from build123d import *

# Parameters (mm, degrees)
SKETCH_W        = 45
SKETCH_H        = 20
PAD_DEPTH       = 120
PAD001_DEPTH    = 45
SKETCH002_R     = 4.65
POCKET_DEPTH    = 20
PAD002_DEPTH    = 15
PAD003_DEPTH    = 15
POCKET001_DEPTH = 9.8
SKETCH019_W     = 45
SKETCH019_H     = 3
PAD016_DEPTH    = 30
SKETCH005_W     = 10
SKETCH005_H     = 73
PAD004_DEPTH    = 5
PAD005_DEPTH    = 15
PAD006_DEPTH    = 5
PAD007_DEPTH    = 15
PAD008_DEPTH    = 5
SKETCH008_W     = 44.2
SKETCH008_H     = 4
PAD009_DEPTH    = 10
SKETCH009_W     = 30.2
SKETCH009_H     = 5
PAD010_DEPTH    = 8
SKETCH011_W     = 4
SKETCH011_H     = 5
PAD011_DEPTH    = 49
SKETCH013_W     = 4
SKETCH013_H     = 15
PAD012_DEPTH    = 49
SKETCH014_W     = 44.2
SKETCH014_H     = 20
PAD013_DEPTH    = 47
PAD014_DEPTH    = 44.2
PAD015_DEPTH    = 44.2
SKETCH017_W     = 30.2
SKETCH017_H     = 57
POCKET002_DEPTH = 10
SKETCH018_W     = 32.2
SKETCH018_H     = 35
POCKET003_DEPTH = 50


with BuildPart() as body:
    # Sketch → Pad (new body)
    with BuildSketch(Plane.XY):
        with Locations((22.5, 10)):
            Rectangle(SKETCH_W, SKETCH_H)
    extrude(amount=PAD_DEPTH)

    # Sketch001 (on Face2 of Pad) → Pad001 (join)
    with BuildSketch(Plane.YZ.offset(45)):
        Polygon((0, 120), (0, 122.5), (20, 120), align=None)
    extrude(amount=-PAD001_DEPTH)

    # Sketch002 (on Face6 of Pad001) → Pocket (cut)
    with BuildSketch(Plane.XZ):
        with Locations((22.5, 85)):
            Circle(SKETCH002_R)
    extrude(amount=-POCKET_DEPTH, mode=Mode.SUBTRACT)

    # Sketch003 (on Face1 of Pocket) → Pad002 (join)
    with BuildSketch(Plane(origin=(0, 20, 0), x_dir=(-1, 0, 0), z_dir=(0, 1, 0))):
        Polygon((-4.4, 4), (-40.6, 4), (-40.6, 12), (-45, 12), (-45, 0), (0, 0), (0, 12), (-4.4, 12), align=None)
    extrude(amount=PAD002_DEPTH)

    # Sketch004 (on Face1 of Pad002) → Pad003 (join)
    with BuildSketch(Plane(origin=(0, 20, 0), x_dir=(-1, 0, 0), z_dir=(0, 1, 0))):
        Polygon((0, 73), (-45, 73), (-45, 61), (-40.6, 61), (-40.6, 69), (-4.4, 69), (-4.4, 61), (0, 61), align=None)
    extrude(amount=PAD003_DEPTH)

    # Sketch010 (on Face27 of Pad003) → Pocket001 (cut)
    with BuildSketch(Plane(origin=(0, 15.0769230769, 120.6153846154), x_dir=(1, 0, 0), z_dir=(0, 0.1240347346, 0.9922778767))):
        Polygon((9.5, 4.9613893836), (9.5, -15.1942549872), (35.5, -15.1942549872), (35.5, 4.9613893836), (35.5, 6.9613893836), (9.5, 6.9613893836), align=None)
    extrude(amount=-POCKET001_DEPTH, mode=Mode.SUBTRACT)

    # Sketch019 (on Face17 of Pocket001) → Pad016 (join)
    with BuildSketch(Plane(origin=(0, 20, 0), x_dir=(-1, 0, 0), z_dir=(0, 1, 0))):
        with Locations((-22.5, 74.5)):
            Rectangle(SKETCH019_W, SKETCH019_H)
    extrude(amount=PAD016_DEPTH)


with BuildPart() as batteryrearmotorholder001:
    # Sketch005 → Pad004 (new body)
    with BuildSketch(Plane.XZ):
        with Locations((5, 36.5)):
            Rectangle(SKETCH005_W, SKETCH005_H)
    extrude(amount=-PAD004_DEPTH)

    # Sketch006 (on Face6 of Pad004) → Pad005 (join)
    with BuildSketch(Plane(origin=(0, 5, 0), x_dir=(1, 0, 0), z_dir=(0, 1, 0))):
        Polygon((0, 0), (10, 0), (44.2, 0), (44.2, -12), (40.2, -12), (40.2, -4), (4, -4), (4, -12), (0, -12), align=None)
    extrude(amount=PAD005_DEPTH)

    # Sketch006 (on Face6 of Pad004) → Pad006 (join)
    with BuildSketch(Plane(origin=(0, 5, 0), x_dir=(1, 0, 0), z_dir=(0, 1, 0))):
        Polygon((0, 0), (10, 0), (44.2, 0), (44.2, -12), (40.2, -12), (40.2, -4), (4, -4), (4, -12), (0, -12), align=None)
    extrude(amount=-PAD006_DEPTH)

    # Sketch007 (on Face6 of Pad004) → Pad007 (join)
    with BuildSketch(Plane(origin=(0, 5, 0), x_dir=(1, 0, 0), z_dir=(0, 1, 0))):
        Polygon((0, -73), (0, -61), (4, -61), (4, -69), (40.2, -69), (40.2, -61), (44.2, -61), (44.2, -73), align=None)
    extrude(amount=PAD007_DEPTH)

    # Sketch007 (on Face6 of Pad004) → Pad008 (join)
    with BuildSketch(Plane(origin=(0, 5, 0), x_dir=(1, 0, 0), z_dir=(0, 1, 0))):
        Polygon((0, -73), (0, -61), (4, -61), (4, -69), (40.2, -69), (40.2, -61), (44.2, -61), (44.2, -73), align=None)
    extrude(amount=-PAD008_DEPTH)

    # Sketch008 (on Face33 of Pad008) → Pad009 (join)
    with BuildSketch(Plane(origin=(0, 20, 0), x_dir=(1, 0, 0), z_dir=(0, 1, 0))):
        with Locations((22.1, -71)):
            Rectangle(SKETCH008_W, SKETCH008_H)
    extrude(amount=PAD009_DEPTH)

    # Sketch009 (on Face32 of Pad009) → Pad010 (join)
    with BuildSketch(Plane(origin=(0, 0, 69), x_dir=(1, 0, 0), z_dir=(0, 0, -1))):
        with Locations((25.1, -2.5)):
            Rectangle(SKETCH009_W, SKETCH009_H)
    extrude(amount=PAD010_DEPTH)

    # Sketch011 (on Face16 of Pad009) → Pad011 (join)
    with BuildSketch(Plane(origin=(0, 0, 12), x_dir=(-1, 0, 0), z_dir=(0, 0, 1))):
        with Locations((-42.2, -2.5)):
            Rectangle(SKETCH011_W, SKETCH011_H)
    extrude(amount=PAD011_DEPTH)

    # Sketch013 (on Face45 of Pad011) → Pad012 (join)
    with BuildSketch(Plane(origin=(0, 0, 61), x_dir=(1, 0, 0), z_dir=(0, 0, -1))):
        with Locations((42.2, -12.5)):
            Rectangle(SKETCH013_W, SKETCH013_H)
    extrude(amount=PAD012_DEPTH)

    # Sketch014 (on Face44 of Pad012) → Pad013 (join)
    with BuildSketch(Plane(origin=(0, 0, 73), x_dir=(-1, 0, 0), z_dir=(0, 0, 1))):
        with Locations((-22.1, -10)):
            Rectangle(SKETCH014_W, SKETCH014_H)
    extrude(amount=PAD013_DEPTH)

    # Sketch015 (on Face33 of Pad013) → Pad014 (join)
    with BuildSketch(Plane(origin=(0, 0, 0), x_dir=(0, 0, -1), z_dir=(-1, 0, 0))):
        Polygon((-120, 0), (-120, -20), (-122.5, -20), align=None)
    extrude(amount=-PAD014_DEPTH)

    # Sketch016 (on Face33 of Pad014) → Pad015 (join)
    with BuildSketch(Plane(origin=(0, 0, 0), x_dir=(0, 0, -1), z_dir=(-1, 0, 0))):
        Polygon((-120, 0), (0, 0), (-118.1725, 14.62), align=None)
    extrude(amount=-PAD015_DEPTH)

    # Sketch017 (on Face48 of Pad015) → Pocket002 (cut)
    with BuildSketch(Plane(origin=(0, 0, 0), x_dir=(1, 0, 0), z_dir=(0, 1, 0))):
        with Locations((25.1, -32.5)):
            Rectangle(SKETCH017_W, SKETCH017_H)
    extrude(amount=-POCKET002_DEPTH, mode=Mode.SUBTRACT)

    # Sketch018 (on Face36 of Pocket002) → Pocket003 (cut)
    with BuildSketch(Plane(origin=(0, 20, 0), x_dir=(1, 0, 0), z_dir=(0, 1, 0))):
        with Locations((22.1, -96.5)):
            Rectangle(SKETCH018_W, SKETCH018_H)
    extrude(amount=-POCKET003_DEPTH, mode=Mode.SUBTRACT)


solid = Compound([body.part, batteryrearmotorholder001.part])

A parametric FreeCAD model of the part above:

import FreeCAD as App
import Part
import Sketcher
from FreeCAD import Vector
Q = App.Units.Quantity


def add_polygon(sketch, points):
    """Adds a closed chain of lines whose ends are joined by coincident constraints."""
    first, n = sketch.GeometryCount, len(points)
    for a, b in zip(points, points[1:] + points[:1]):
        sketch.addGeometry(Part.LineSegment(App.Vector(*a, 0), App.Vector(*b, 0)), False)
    for i in range(n):
        sketch.addConstraint(Sketcher.Constraint("Coincident", first + i, 2, first + (i + 1) % n, 1))

doc = App.newDocument("Part")
body = doc.addObject("PartDesign::Body", "Body")

sketch1 = doc.addObject("Sketcher::SketchObject", "Sketch")
body.addObject(sketch1)
sketch1.AttachmentSupport = (doc.XY_Plane, [""])
sketch1.MapMode = "FlatFace"
add_polygon(sketch1, [(0, 20), (0, 0), (45, 0), (45, 20)])
sketch1.addConstraint(Sketcher.Constraint("Vertical", 0))
sketch1.addConstraint(Sketcher.Constraint("Horizontal", 1))
sketch1.addConstraint(Sketcher.Constraint("Vertical", 2))
sketch1.addConstraint(Sketcher.Constraint("Horizontal", 3))
sketch1.addConstraint(Sketcher.Constraint("Coincident", 0, 2, -1, 1))
sketch1.addConstraint(Sketcher.Constraint("DistanceX", 1, 1, 1, 2, Q("45 mm")))
sketch1.addConstraint(Sketcher.Constraint("DistanceY", 0, 2, 0, 1, Q("20 mm")))
pad1 = doc.addObject("PartDesign::Pad", "Pad")
body.addObject(pad1)
pad1.Profile = sketch1
pad1.Length = 120

sketch2 = doc.addObject("Sketcher::SketchObject", "Sketch001")
body.addObject(sketch2)
sketch2.AttachmentSupport = (doc.YZ_Plane, [""])
sketch2.MapMode = "FlatFace"
sketch2.AttachmentOffset = App.Placement(Vector(0, 0, 45), App.Rotation())
add_polygon(sketch2, [(0, 122.5), (0, 120), (20, 120)])
sketch2.addConstraint(Sketcher.Constraint("Vertical", 0))
sketch2.addConstraint(Sketcher.Constraint("Horizontal", 1))
sketch2.addConstraint(Sketcher.Constraint("PointOnObject", 0, 2, -2))
sketch2.addConstraint(Sketcher.Constraint("DistanceX", 1, 1, 1, 2, Q("20 mm")))
sketch2.addConstraint(Sketcher.Constraint("DistanceY", 0, 2, 0, 1, Q("2.5 mm")))
sketch2.addConstraint(Sketcher.Constraint("DistanceY", -1, 1, 0, 2, Q("120 mm")))
pad2 = doc.addObject("PartDesign::Pad", "Pad001")
body.addObject(pad2)
pad2.Profile = sketch2
pad2.Length = 45
pad2.Reversed = True

sketch3 = doc.addObject("Sketcher::SketchObject", "Sketch002")
body.addObject(sketch3)
sketch3.AttachmentSupport = (doc.XZ_Plane, [""])
sketch3.MapMode = "FlatFace"
sketch3.addGeometry(Part.Circle(Vector(22.5, 85, 0), Vector(0, 0, 1), 4.7), False)
sketch3.addConstraint(Sketcher.Constraint("Diameter", 0, Q("9.3 mm")))
sketch3.addConstraint(Sketcher.Constraint("DistanceY", -1, 1, 0, 3, Q("85 mm")))
sketch3.addConstraint(Sketcher.Constraint("DistanceX", -1, 1, 0, 3, Q("22.5 mm")))
pocket1 = doc.addObject("PartDesign::Pocket", "Pocket")
body.addObject(pocket1)
pocket1.Profile = sketch3
pocket1.Length = 20

sketch4 = doc.addObject("Sketcher::SketchObject", "Sketch003")
body.addObject(sketch4)
sketch4.AttachmentSupport = (doc.XZ_Plane, [""])
sketch4.MapMode = "FlatFace"
sketch4.AttachmentOffset = App.Placement(Vector(0, 0, -20), App.Rotation())
add_polygon(sketch4, [(4.4, 4), (40.6, 4), (40.6, 12), (45, 12), (45, 0), (0, 0), (0, 12), (4.4, 12)])
sketch4.addConstraint(Sketcher.Constraint("Horizontal", 0))
sketch4.addConstraint(Sketcher.Constraint("Vertical", 1))
sketch4.addConstraint(Sketcher.Constraint("Horizontal", 2))
sketch4.addConstraint(Sketcher.Constraint("Vertical", 3))
sketch4.addConstraint(Sketcher.Constraint("Horizontal", 4))
sketch4.addConstraint(Sketcher.Constraint("Vertical", 5))
sketch4.addConstraint(Sketcher.Constraint("Horizontal", 6))
sketch4.addConstraint(Sketcher.Constraint("Vertical", 7))
sketch4.addConstraint(Sketcher.Constraint("Coincident", 4, 2, -1, 1))
sketch4.addConstraint(Sketcher.Constraint("Horizontal", 2, 2, 5, 2))
sketch4.addConstraint(Sketcher.Constraint("Equal", 2, 6))
sketch4.addConstraint(Sketcher.Constraint("DistanceX", 4, 2, 4, 1, Q("45 mm")))
sketch4.addConstraint(Sketcher.Constraint("DistanceY", 1, 1, 1, 2, Q("8 mm")))
sketch4.addConstraint(Sketcher.Constraint("DistanceY", 3, 2, 3, 1, Q("12 mm")))
sketch4.addConstraint(Sketcher.Constraint("DistanceX", 0, 1, 0, 2, Q("36.2 mm")))
pad3 = doc.addObject("PartDesign::Pad", "Pad002")
body.addObject(pad3)
pad3.Profile = sketch4
pad3.Length = 15
pad3.Reversed = True

sketch5 = doc.addObject("Sketcher::SketchObject", "Sketch004")
body.addObject(sketch5)
sketch5.AttachmentSupport = (doc.XZ_Plane, [""])
sketch5.MapMode = "FlatFace"
sketch5.AttachmentOffset = App.Placement(Vector(0, 0, -20), App.Rotation())
add_polygon(sketch5, [(0, 73), (45, 73), (45, 61), (40.6, 61), (40.6, 69), (4.4, 69), (4.4, 61), (0, 61)])
sketch5.addConstraint(Sketcher.Constraint("Horizontal", 0))
sketch5.addConstraint(Sketcher.Constraint("Vertical", 1))
sketch5.addConstraint(Sketcher.Constraint("Horizontal", 2))
sketch5.addConstraint(Sketcher.Constraint("Vertical", 3))
sketch5.addConstraint(Sketcher.Constraint("Horizontal", 4))
sketch5.addConstraint(Sketcher.Constraint("Vertical", 5))
sketch5.addConstraint(Sketcher.Constraint("Horizontal", 6))
sketch5.addConstraint(Sketcher.Constraint("Vertical", 7))
sketch5.addConstraint(Sketcher.Constraint("PointOnObject", 6, 2, -2))
sketch5.addConstraint(Sketcher.Constraint("Horizontal", 2, 2, 5, 2))
sketch5.addConstraint(Sketcher.Constraint("Equal", 2, 6))
sketch5.addConstraint(Sketcher.Constraint("DistanceX", 0, 1, 0, 2, Q("45 mm")))
sketch5.addConstraint(Sketcher.Constraint("DistanceY", 1, 2, 1, 1, Q("12 mm")))
sketch5.addConstraint(Sketcher.Constraint("DistanceY", 3, 1, 3, 2, Q("8 mm")))
sketch5.addConstraint(Sketcher.Constraint("DistanceX", 2, 2, 2, 1, Q("4.4 mm")))
sketch5.addConstraint(Sketcher.Constraint("DistanceY", -1, 1, 0, 2, Q("73 mm")))
pad4 = doc.addObject("PartDesign::Pad", "Pad003")
body.addObject(pad4)
pad4.Profile = sketch5
pad4.Length = 15
pad4.Reversed = True

sketch6 = doc.addObject("Sketcher::SketchObject", "Sketch005")
body.addObject(sketch6)
sketch6.Placement = App.Placement(Vector(0, 15.076923, 120.615385), App.Rotation(Vector(1, 0, 0), Vector(0, 0.992277877, -0.124034735), Vector(0, 0.124034735, 0.992277877), "ZXY"))
add_polygon(sketch6, [(10, -15), (36, -15), (36, 7), (10, 7)])
sketch6.addConstraint(Sketcher.Constraint("Horizontal", 0))
sketch6.addConstraint(Sketcher.Constraint("Vertical", 1))
sketch6.addConstraint(Sketcher.Constraint("Horizontal", 2))
sketch6.addConstraint(Sketcher.Constraint("Vertical", 3))
sketch6.addConstraint(Sketcher.Constraint("DistanceX", 0, 1, 0, 2, Q("26 mm")))
sketch6.addConstraint(Sketcher.Constraint("DistanceX", -1, 1, 0, 2, Q("35.5 mm")))
sketch6.addConstraint(Sketcher.Constraint("DistanceY", 1, 1, 1, 2, Q("22.155644 mm")))
sketch6.addConstraint(Sketcher.Constraint("DistanceY", -1, 1, 1, 2, Q("6.961389 mm")))
pocket2 = doc.addObject("PartDesign::Pocket", "Pocket001")
body.addObject(pocket2)
pocket2.Profile = sketch6
pocket2.Length = 9.8

sketch7 = doc.addObject("Sketcher::SketchObject", "Sketch006")
body.addObject(sketch7)
sketch7.AttachmentSupport = (doc.XZ_Plane, [""])
sketch7.MapMode = "FlatFace"
sketch7.AttachmentOffset = App.Placement(Vector(0, 0, -20), App.Rotation())
add_polygon(sketch7, [(45, 76), (45, 73), (0, 73), (0, 76)])
sketch7.addConstraint(Sketcher.Constraint("Vertical", 0))
sketch7.addConstraint(Sketcher.Constraint("Horizontal", 1))
sketch7.addConstraint(Sketcher.Constraint("Vertical", 2))
sketch7.addConstraint(Sketcher.Constraint("Horizontal", 3))
sketch7.addConstraint(Sketcher.Constraint("PointOnObject", 1, 2, -2))
sketch7.addConstraint(Sketcher.Constraint("DistanceX", 1, 2, 1, 1, Q("45 mm")))
sketch7.addConstraint(Sketcher.Constraint("DistanceY", 0, 2, 0, 1, Q("3 mm")))
sketch7.addConstraint(Sketcher.Constraint("DistanceY", -1, 1, 0, 2, Q("73 mm")))
pad5 = doc.addObject("PartDesign::Pad", "Pad004")
body.addObject(pad5)
pad5.Profile = sketch7
pad5.Length = 30
pad5.Reversed = True
body2 = doc.addObject("PartDesign::Body", "Body001")

sketch8 = doc.addObject("Sketcher::SketchObject", "Sketch007")
body2.addObject(sketch8)
sketch8.AttachmentSupport = (doc.getObject("XZ_Plane001"), [""])
sketch8.MapMode = "FlatFace"
add_polygon(sketch8, [(0, 73), (0, 0), (10, 0), (10, 73)])
sketch8.addConstraint(Sketcher.Constraint("Vertical", 0))
sketch8.addConstraint(Sketcher.Constraint("Horizontal", 1))
sketch8.addConstraint(Sketcher.Constraint("Vertical", 2))
sketch8.addConstraint(Sketcher.Constraint("Horizontal", 3))
sketch8.addConstraint(Sketcher.Constraint("Coincident", 0, 2, -1, 1))
sketch8.addConstraint(Sketcher.Constraint("DistanceX", 1, 1, 1, 2, Q("10 mm")))
sketch8.addConstraint(Sketcher.Constraint("DistanceY", 0, 2, 0, 1, Q("73 mm")))
pad6 = doc.addObject("PartDesign::Pad", "Pad005")
body2.addObject(pad6)
pad6.Profile = sketch8
pad6.Length = 5
pad6.Reversed = True

sketch9 = doc.addObject("Sketcher::SketchObject", "Sketch008")
body2.addObject(sketch9)
sketch9.AttachmentSupport = (doc.getObject("XZ_Plane001"), [""])
sketch9.MapMode = "FlatFace"
sketch9.AttachmentOffset = App.Placement(Vector(0, 0, -5), App.Rotation())
add_polygon(sketch9, [(44.2, 0), (0, 0), (0, 12), (4, 12), (4, 4), (40.2, 4), (40.2, 12), (44.2, 12)])
sketch9.addConstraint(Sketcher.Constraint("Horizontal", 0))
sketch9.addConstraint(Sketcher.Constraint("Vertical", 1))
sketch9.addConstraint(Sketcher.Constraint("Horizontal", 2))
sketch9.addConstraint(Sketcher.Constraint("Vertical", 3))
sketch9.addConstraint(Sketcher.Constraint("Horizontal", 4))
sketch9.addConstraint(Sketcher.Constraint("Vertical", 5))
sketch9.addConstraint(Sketcher.Constraint("Horizontal", 6))
sketch9.addConstraint(Sketcher.Constraint("Vertical", 7))
sketch9.addConstraint(Sketcher.Constraint("Coincident", 0, 2, -1, 1))
sketch9.addConstraint(Sketcher.Constraint("Horizontal", 2, 2, 5, 2))
sketch9.addConstraint(Sketcher.Constraint("Equal", 2, 6))
sketch9.addConstraint(Sketcher.Constraint("DistanceX", 2, 1, 2, 2, Q("4 mm")))
sketch9.addConstraint(Sketcher.Constraint("DistanceY", 1, 1, 1, 2, Q("12 mm")))
sketch9.addConstraint(Sketcher.Constraint("DistanceY", 3, 2, 3, 1, Q("8 mm")))
sketch9.addConstraint(Sketcher.Constraint("DistanceX", 0, 2, 0, 1, Q("44.2 mm")))
pad7 = doc.addObject("PartDesign::Pad", "Pad006")
body2.addObject(pad7)
pad7.Profile = sketch9
pad7.Length = 15
pad7.Reversed = True

sketch10 = doc.addObject("Sketcher::SketchObject", "Sketch009")
body2.addObject(sketch10)
sketch10.AttachmentSupport = (doc.getObject("XZ_Plane001"), [""])
sketch10.MapMode = "FlatFace"
sketch10.AttachmentOffset = App.Placement(Vector(0, 0, -5), App.Rotation())
add_polygon(sketch10, [(44.2, 0), (0, 0), (0, 12), (4, 12), (4, 4), (40.2, 4), (40.2, 12), (44.2, 12)])
sketch10.addConstraint(Sketcher.Constraint("Horizontal", 0))
sketch10.addConstraint(Sketcher.Constraint("Vertical", 1))
sketch10.addConstraint(Sketcher.Constraint("Horizontal", 2))
sketch10.addConstraint(Sketcher.Constraint("Vertical", 3))
sketch10.addConstraint(Sketcher.Constraint("Horizontal", 4))
sketch10.addConstraint(Sketcher.Constraint("Vertical", 5))
sketch10.addConstraint(Sketcher.Constraint("Horizontal", 6))
sketch10.addConstraint(Sketcher.Constraint("Vertical", 7))
sketch10.addConstraint(Sketcher.Constraint("Coincident", 0, 2, -1, 1))
sketch10.addConstraint(Sketcher.Constraint("Horizontal", 2, 2, 5, 2))
sketch10.addConstraint(Sketcher.Constraint("Equal", 2, 6))
sketch10.addConstraint(Sketcher.Constraint("DistanceX", 2, 1, 2, 2, Q("4 mm")))
sketch10.addConstraint(Sketcher.Constraint("DistanceY", 1, 1, 1, 2, Q("12 mm")))
sketch10.addConstraint(Sketcher.Constraint("DistanceY", 3, 2, 3, 1, Q("8 mm")))
sketch10.addConstraint(Sketcher.Constraint("DistanceX", 0, 2, 0, 1, Q("44.2 mm")))
pad8 = doc.addObject("PartDesign::Pad", "Pad007")
body2.addObject(pad8)
pad8.Profile = sketch10
pad8.Length = 5

sketch11 = doc.addObject("Sketcher::SketchObject", "Sketch010")
body2.addObject(sketch11)
sketch11.AttachmentSupport = (doc.getObject("XZ_Plane001"), [""])
sketch11.MapMode = "FlatFace"
sketch11.AttachmentOffset = App.Placement(Vector(0, 0, -5), App.Rotation())
add_polygon(sketch11, [(0, 61), (0, 73), (44.2, 73), (44.2, 61), (40.2, 61), (40.2, 69), (4, 69), (4, 61)])
sketch11.addConstraint(Sketcher.Constraint("Vertical", 0))
sketch11.addConstraint(Sketcher.Constraint("Horizontal", 1))
sketch11.addConstraint(Sketcher.Constraint("Vertical", 2))
sketch11.addConstraint(Sketcher.Constraint("Horizontal", 3))
sketch11.addConstraint(Sketcher.Constraint("Vertical", 4))
sketch11.addConstraint(Sketcher.Constraint("Horizontal", 5))
sketch11.addConstraint(Sketcher.Constraint("Vertical", 6))
sketch11.addConstraint(Sketcher.Constraint("Horizontal", 7))
sketch11.addConstraint(Sketcher.Constraint("PointOnObject", 0, 2, -2))
sketch11.addConstraint(Sketcher.Constraint("Horizontal", 3, 2, 6, 2))
sketch11.addConstraint(Sketcher.Constraint("Equal", 3, 7))
sketch11.addConstraint(Sketcher.Constraint("DistanceX", 3, 2, 3, 1, Q("4 mm")))
sketch11.addConstraint(Sketcher.Constraint("DistanceY", 0, 1, 0, 2, Q("12 mm")))
sketch11.addConstraint(Sketcher.Constraint("DistanceY", 4, 1, 4, 2, Q("8 mm")))
sketch11.addConstraint(Sketcher.Constraint("DistanceX", 1, 1, 1, 2, Q("44.2 mm")))
sketch11.addConstraint(Sketcher.Constraint("DistanceY", -1, 1, 0, 2, Q("73 mm")))
pad9 = doc.addObject("PartDesign::Pad", "Pad008")
body2.addObject(pad9)
pad9.Profile = sketch11
pad9.Length = 15
pad9.Reversed = True

sketch12 = doc.addObject("Sketcher::SketchObject", "Sketch011")
body2.addObject(sketch12)
sketch12.AttachmentSupport = (doc.getObject("XZ_Plane001"), [""])
sketch12.MapMode = "FlatFace"
sketch12.AttachmentOffset = App.Placement(Vector(0, 0, -5), App.Rotation())
add_polygon(sketch12, [(0, 61), (0, 73), (44.2, 73), (44.2, 61), (40.2, 61), (40.2, 69), (4, 69), (4, 61)])
sketch12.addConstraint(Sketcher.Constraint("Vertical", 0))
sketch12.addConstraint(Sketcher.Constraint("Horizontal", 1))
sketch12.addConstraint(Sketcher.Constraint("Vertical", 2))
sketch12.addConstraint(Sketcher.Constraint("Horizontal", 3))
sketch12.addConstraint(Sketcher.Constraint("Vertical", 4))
sketch12.addConstraint(Sketcher.Constraint("Horizontal", 5))
sketch12.addConstraint(Sketcher.Constraint("Vertical", 6))
sketch12.addConstraint(Sketcher.Constraint("Horizontal", 7))
sketch12.addConstraint(Sketcher.Constraint("PointOnObject", 0, 2, -2))
sketch12.addConstraint(Sketcher.Constraint("Horizontal", 3, 2, 6, 2))
sketch12.addConstraint(Sketcher.Constraint("Equal", 3, 7))
sketch12.addConstraint(Sketcher.Constraint("DistanceX", 3, 2, 3, 1, Q("4 mm")))
sketch12.addConstraint(Sketcher.Constraint("DistanceY", 0, 1, 0, 2, Q("12 mm")))
sketch12.addConstraint(Sketcher.Constraint("DistanceY", 4, 1, 4, 2, Q("8 mm")))
sketch12.addConstraint(Sketcher.Constraint("DistanceX", 1, 1, 1, 2, Q("44.2 mm")))
sketch12.addConstraint(Sketcher.Constraint("DistanceY", -1, 1, 0, 2, Q("73 mm")))
pad10 = doc.addObject("PartDesign::Pad", "Pad009")
body2.addObject(pad10)
pad10.Profile = sketch12
pad10.Length = 5

sketch13 = doc.addObject("Sketcher::SketchObject", "Sketch012")
body2.addObject(sketch13)
sketch13.AttachmentSupport = (doc.getObject("XZ_Plane001"), [""])
sketch13.MapMode = "FlatFace"
sketch13.AttachmentOffset = App.Placement(Vector(0, 0, -20), App.Rotation())
add_polygon(sketch13, [(0, 69), (0, 73), (44.2, 73), (44.2, 69)])
sketch13.addConstraint(Sketcher.Constraint("Vertical", 0))
sketch13.addConstraint(Sketcher.Constraint("Horizontal", 1))
sketch13.addConstraint(Sketcher.Constraint("Vertical", 2))
sketch13.addConstraint(Sketcher.Constraint("Horizontal", 3))
sketch13.addConstraint(Sketcher.Constraint("PointOnObject", 0, 2, -2))
sketch13.addConstraint(Sketcher.Constraint("DistanceY", 0, 1, 0, 2, Q("4 mm")))
sketch13.addConstraint(Sketcher.Constraint("DistanceX", 1, 1, 1, 2, Q("44.2 mm")))
sketch13.addConstraint(Sketcher.Constraint("DistanceY", -1, 1, 0, 2, Q("73 mm")))
pad11 = doc.addObject("PartDesign::Pad", "Pad010")
body2.addObject(pad11)
pad11.Profile = sketch13
pad11.Length = 10
pad11.Reversed = True

sketch14 = doc.addObject("Sketcher::SketchObject", "Sketch013")
body2.addObject(sketch14)
sketch14.AttachmentSupport = (doc.getObject("XY_Plane001"), [""])
sketch14.MapMode = "FlatFace"
sketch14.AttachmentOffset = App.Placement(Vector(0, 0, 69), App.Rotation())
add_polygon(sketch14, [(10, 0), (10, 5), (40, 5), (40, 0)])
sketch14.addConstraint(Sketcher.Constraint("Vertical", 0))
sketch14.addConstraint(Sketcher.Constraint("Horizontal", 1))
sketch14.addConstraint(Sketcher.Constraint("Vertical", 2))
sketch14.addConstraint(Sketcher.Constraint("Horizontal", 3))
sketch14.addConstraint(Sketcher.Constraint("PointOnObject", 2, 2, -1))
sketch14.addConstraint(Sketcher.Constraint("DistanceY", 0, 1, 0, 2, Q("5 mm")))
sketch14.addConstraint(Sketcher.Constraint("DistanceX", 1, 1, 1, 2, Q("30.2 mm")))
sketch14.addConstraint(Sketcher.Constraint("DistanceX", -1, 1, 0, 2, Q("10 mm")))
pad12 = doc.addObject("PartDesign::Pad", "Pad011")
body2.addObject(pad12)
pad12.Profile = sketch14
pad12.Length = 8
pad12.Reversed = True

sketch15 = doc.addObject("Sketcher::SketchObject", "Sketch014")
body2.addObject(sketch15)
sketch15.AttachmentSupport = (doc.getObject("XY_Plane001"), [""])
sketch15.MapMode = "FlatFace"
sketch15.AttachmentOffset = App.Placement(Vector(0, 0, 12), App.Rotation())
add_polygon(sketch15, [(44.2, 0), (44.2, 5), (40.2, 5), (40.2, 0)])
sketch15.addConstraint(Sketcher.Constraint("Vertical", 0))
sketch15.addConstraint(Sketcher.Constraint("Horizontal", 1))
sketch15.addConstraint(Sketcher.Constraint("Vertical", 2))
sketch15.addConstraint(Sketcher.Constraint("Horizontal", 3))
sketch15.addConstraint(Sketcher.Constraint("PointOnObject", 2, 2, -1))
sketch15.addConstraint(Sketcher.Constraint("DistanceX", 1, 2, 1, 1, Q("4 mm")))
sketch15.addConstraint(Sketcher.Constraint("DistanceY", 0, 1, 0, 2, Q("5 mm")))
sketch15.addConstraint(Sketcher.Constraint("DistanceX", -1, 1, 0, 2, Q("44.2 mm")))
pad13 = doc.addObject("PartDesign::Pad", "Pad012")
body2.addObject(pad13)
pad13.Profile = sketch15
pad13.Length = 49

sketch16 = doc.addObject("Sketcher::SketchObject", "Sketch015")
body2.addObject(sketch16)
sketch16.AttachmentSupport = (doc.getObject("XY_Plane001"), [""])
sketch16.MapMode = "FlatFace"
sketch16.AttachmentOffset = App.Placement(Vector(0, 0, 61), App.Rotation())
add_polygon(sketch16, [(40.2, 5), (40.2, 20), (44.2, 20), (44.2, 5)])
sketch16.addConstraint(Sketcher.Constraint("Vertical", 0))
sketch16.addConstraint(Sketcher.Constraint("Horizontal", 1))
sketch16.addConstraint(Sketcher.Constraint("Vertical", 2))
sketch16.addConstraint(Sketcher.Constraint("Horizontal", 3))
sketch16.addConstraint(Sketcher.Constraint("DistanceX", 1, 1, 1, 2, Q("4 mm")))
sketch16.addConstraint(Sketcher.Constraint("DistanceY", 0, 1, 0, 2, Q("15 mm")))
sketch16.addConstraint(Sketcher.Constraint("DistanceY", -1, 1, 0, 2, Q("20 mm")))
sketch16.addConstraint(Sketcher.Constraint("DistanceX", -1, 1, 0, 2, Q("40.2 mm")))
pad14 = doc.addObject("PartDesign::Pad", "Pad013")
body2.addObject(pad14)
pad14.Profile = sketch16
pad14.Length = 49
pad14.Reversed = True

sketch17 = doc.addObject("Sketcher::SketchObject", "Sketch016")
body2.addObject(sketch17)
sketch17.AttachmentSupport = (doc.getObject("XY_Plane001"), [""])
sketch17.MapMode = "FlatFace"
sketch17.AttachmentOffset = App.Placement(Vector(0, 0, 73), App.Rotation())
add_polygon(sketch17, [(44, 0), (44, 20), (0, 20), (0, 0)])
sketch17.addConstraint(Sketcher.Constraint("Vertical", 0))
sketch17.addConstraint(Sketcher.Constraint("Horizontal", 1))
sketch17.addConstraint(Sketcher.Constraint("Vertical", 2))
sketch17.addConstraint(Sketcher.Constraint("Horizontal", 3))
sketch17.addConstraint(Sketcher.Constraint("Coincident", 2, 2, -1, 1))
sketch17.addConstraint(Sketcher.Constraint("DistanceY", 0, 1, 0, 2, Q("20 mm")))
sketch17.addConstraint(Sketcher.Constraint("DistanceX", 1, 2, 1, 1, Q("44.2 mm")))
pad15 = doc.addObject("PartDesign::Pad", "Pad014")
body2.addObject(pad15)
pad15.Profile = sketch17
pad15.Length = 47

sketch18 = doc.addObject("Sketcher::SketchObject", "Sketch017")
body2.addObject(sketch18)
sketch18.AttachmentSupport = (doc.getObject("YZ_Plane001"), [""])
sketch18.MapMode = "FlatFace"
add_polygon(sketch18, [(20, 120), (0, 120), (20, 122.5)])
sketch18.addConstraint(Sketcher.Constraint("Horizontal", 0))
sketch18.addConstraint(Sketcher.Constraint("Vertical", 2))
sketch18.addConstraint(Sketcher.Constraint("PointOnObject", 0, 2, -2))
sketch18.addConstraint(Sketcher.Constraint("DistanceX", 0, 2, 0, 1, Q("20 mm")))
sketch18.addConstraint(Sketcher.Constraint("DistanceY", 2, 2, 2, 1, Q("2.5 mm")))
sketch18.addConstraint(Sketcher.Constraint("DistanceY", -1, 1, 0, 2, Q("120 mm")))
pad16 = doc.addObject("PartDesign::Pad", "Pad015")
body2.addObject(pad16)
pad16.Profile = sketch18
pad16.Length = 44.2

sketch19 = doc.addObject("Sketcher::SketchObject", "Sketch018")
body2.addObject(sketch19)
sketch19.AttachmentSupport = (doc.getObject("YZ_Plane001"), [""])
sketch19.MapMode = "FlatFace"
add_polygon(sketch19, [(0, 120), (0, 0), (-15, 118)])
sketch19.addConstraint(Sketcher.Constraint("Vertical", 0))
sketch19.addConstraint(Sketcher.Constraint("Coincident", 0, 2, -1, 1))
sketch19.addConstraint(Sketcher.Constraint("DistanceY", 0, 2, 0, 1, Q("120 mm")))
sketch19.addConstraint(Sketcher.Constraint("DistanceX", 1, 2, -1, 1, Q("14.62 mm")))
sketch19.addConstraint(Sketcher.Constraint("DistanceY", -1, 1, 1, 2, Q("118.1725 mm")))
pad17 = doc.addObject("PartDesign::Pad", "Pad016")
body2.addObject(pad17)
pad17.Profile = sketch19
pad17.Length = 44.2

sketch20 = doc.addObject("Sketcher::SketchObject", "Sketch019")
body2.addObject(sketch20)
sketch20.AttachmentSupport = (doc.getObject("XZ_Plane001"), [""])
sketch20.MapMode = "FlatFace"
add_polygon(sketch20, [(10, 4), (10, 61), (40, 61), (40, 4)])
sketch20.addConstraint(Sketcher.Constraint("Vertical", 0))
sketch20.addConstraint(Sketcher.Constraint("Horizontal", 1))
sketch20.addConstraint(Sketcher.Constraint("Vertical", 2))
sketch20.addConstraint(Sketcher.Constraint("Horizontal", 3))
sketch20.addConstraint(Sketcher.Constraint("DistanceY", 0, 1, 0, 2, Q("57 mm")))
sketch20.addConstraint(Sketcher.Constraint("DistanceX", 1, 1, 1, 2, Q("30.2 mm")))
sketch20.addConstraint(Sketcher.Constraint("DistanceX", -1, 1, 0, 2, Q("10 mm")))
sketch20.addConstraint(Sketcher.Constraint("DistanceY", -1, 1, 0, 2, Q("61 mm")))
pocket3 = doc.addObject("PartDesign::Pocket", "Pocket002")
body2.addObject(pocket3)
pocket3.Profile = sketch20
pocket3.Length = 10
pocket3.Reversed = True

sketch21 = doc.addObject("Sketcher::SketchObject", "Sketch020")
body2.addObject(sketch21)
sketch21.AttachmentSupport = (doc.getObject("XZ_Plane001"), [""])
sketch21.MapMode = "FlatFace"
sketch21.AttachmentOffset = App.Placement(Vector(0, 0, -20), App.Rotation())
add_polygon(sketch21, [(6, 79), (6, 114), (38, 114), (38, 79)])
sketch21.addConstraint(Sketcher.Constraint("Vertical", 0))
sketch21.addConstraint(Sketcher.Constraint("Horizontal", 1))
sketch21.addConstraint(Sketcher.Constraint("Vertical", 2))
sketch21.addConstraint(Sketcher.Constraint("Horizontal", 3))
sketch21.addConstraint(Sketcher.Constraint("DistanceY", 0, 1, 0, 2, Q("35 mm")))
sketch21.addConstraint(Sketcher.Constraint("DistanceX", 1, 1, 1, 2, Q("32.2 mm")))
sketch21.addConstraint(Sketcher.Constraint("DistanceX", -1, 1, 0, 2, Q("6 mm")))
sketch21.addConstraint(Sketcher.Constraint("DistanceY", -1, 1, 0, 2, Q("114 mm")))
pocket4 = doc.addObject("PartDesign::Pocket", "Pocket003")
body2.addObject(pocket4)
pocket4.Profile = sketch21
pocket4.Length = 50
pocket4.Reversed = True

doc.recompute()
